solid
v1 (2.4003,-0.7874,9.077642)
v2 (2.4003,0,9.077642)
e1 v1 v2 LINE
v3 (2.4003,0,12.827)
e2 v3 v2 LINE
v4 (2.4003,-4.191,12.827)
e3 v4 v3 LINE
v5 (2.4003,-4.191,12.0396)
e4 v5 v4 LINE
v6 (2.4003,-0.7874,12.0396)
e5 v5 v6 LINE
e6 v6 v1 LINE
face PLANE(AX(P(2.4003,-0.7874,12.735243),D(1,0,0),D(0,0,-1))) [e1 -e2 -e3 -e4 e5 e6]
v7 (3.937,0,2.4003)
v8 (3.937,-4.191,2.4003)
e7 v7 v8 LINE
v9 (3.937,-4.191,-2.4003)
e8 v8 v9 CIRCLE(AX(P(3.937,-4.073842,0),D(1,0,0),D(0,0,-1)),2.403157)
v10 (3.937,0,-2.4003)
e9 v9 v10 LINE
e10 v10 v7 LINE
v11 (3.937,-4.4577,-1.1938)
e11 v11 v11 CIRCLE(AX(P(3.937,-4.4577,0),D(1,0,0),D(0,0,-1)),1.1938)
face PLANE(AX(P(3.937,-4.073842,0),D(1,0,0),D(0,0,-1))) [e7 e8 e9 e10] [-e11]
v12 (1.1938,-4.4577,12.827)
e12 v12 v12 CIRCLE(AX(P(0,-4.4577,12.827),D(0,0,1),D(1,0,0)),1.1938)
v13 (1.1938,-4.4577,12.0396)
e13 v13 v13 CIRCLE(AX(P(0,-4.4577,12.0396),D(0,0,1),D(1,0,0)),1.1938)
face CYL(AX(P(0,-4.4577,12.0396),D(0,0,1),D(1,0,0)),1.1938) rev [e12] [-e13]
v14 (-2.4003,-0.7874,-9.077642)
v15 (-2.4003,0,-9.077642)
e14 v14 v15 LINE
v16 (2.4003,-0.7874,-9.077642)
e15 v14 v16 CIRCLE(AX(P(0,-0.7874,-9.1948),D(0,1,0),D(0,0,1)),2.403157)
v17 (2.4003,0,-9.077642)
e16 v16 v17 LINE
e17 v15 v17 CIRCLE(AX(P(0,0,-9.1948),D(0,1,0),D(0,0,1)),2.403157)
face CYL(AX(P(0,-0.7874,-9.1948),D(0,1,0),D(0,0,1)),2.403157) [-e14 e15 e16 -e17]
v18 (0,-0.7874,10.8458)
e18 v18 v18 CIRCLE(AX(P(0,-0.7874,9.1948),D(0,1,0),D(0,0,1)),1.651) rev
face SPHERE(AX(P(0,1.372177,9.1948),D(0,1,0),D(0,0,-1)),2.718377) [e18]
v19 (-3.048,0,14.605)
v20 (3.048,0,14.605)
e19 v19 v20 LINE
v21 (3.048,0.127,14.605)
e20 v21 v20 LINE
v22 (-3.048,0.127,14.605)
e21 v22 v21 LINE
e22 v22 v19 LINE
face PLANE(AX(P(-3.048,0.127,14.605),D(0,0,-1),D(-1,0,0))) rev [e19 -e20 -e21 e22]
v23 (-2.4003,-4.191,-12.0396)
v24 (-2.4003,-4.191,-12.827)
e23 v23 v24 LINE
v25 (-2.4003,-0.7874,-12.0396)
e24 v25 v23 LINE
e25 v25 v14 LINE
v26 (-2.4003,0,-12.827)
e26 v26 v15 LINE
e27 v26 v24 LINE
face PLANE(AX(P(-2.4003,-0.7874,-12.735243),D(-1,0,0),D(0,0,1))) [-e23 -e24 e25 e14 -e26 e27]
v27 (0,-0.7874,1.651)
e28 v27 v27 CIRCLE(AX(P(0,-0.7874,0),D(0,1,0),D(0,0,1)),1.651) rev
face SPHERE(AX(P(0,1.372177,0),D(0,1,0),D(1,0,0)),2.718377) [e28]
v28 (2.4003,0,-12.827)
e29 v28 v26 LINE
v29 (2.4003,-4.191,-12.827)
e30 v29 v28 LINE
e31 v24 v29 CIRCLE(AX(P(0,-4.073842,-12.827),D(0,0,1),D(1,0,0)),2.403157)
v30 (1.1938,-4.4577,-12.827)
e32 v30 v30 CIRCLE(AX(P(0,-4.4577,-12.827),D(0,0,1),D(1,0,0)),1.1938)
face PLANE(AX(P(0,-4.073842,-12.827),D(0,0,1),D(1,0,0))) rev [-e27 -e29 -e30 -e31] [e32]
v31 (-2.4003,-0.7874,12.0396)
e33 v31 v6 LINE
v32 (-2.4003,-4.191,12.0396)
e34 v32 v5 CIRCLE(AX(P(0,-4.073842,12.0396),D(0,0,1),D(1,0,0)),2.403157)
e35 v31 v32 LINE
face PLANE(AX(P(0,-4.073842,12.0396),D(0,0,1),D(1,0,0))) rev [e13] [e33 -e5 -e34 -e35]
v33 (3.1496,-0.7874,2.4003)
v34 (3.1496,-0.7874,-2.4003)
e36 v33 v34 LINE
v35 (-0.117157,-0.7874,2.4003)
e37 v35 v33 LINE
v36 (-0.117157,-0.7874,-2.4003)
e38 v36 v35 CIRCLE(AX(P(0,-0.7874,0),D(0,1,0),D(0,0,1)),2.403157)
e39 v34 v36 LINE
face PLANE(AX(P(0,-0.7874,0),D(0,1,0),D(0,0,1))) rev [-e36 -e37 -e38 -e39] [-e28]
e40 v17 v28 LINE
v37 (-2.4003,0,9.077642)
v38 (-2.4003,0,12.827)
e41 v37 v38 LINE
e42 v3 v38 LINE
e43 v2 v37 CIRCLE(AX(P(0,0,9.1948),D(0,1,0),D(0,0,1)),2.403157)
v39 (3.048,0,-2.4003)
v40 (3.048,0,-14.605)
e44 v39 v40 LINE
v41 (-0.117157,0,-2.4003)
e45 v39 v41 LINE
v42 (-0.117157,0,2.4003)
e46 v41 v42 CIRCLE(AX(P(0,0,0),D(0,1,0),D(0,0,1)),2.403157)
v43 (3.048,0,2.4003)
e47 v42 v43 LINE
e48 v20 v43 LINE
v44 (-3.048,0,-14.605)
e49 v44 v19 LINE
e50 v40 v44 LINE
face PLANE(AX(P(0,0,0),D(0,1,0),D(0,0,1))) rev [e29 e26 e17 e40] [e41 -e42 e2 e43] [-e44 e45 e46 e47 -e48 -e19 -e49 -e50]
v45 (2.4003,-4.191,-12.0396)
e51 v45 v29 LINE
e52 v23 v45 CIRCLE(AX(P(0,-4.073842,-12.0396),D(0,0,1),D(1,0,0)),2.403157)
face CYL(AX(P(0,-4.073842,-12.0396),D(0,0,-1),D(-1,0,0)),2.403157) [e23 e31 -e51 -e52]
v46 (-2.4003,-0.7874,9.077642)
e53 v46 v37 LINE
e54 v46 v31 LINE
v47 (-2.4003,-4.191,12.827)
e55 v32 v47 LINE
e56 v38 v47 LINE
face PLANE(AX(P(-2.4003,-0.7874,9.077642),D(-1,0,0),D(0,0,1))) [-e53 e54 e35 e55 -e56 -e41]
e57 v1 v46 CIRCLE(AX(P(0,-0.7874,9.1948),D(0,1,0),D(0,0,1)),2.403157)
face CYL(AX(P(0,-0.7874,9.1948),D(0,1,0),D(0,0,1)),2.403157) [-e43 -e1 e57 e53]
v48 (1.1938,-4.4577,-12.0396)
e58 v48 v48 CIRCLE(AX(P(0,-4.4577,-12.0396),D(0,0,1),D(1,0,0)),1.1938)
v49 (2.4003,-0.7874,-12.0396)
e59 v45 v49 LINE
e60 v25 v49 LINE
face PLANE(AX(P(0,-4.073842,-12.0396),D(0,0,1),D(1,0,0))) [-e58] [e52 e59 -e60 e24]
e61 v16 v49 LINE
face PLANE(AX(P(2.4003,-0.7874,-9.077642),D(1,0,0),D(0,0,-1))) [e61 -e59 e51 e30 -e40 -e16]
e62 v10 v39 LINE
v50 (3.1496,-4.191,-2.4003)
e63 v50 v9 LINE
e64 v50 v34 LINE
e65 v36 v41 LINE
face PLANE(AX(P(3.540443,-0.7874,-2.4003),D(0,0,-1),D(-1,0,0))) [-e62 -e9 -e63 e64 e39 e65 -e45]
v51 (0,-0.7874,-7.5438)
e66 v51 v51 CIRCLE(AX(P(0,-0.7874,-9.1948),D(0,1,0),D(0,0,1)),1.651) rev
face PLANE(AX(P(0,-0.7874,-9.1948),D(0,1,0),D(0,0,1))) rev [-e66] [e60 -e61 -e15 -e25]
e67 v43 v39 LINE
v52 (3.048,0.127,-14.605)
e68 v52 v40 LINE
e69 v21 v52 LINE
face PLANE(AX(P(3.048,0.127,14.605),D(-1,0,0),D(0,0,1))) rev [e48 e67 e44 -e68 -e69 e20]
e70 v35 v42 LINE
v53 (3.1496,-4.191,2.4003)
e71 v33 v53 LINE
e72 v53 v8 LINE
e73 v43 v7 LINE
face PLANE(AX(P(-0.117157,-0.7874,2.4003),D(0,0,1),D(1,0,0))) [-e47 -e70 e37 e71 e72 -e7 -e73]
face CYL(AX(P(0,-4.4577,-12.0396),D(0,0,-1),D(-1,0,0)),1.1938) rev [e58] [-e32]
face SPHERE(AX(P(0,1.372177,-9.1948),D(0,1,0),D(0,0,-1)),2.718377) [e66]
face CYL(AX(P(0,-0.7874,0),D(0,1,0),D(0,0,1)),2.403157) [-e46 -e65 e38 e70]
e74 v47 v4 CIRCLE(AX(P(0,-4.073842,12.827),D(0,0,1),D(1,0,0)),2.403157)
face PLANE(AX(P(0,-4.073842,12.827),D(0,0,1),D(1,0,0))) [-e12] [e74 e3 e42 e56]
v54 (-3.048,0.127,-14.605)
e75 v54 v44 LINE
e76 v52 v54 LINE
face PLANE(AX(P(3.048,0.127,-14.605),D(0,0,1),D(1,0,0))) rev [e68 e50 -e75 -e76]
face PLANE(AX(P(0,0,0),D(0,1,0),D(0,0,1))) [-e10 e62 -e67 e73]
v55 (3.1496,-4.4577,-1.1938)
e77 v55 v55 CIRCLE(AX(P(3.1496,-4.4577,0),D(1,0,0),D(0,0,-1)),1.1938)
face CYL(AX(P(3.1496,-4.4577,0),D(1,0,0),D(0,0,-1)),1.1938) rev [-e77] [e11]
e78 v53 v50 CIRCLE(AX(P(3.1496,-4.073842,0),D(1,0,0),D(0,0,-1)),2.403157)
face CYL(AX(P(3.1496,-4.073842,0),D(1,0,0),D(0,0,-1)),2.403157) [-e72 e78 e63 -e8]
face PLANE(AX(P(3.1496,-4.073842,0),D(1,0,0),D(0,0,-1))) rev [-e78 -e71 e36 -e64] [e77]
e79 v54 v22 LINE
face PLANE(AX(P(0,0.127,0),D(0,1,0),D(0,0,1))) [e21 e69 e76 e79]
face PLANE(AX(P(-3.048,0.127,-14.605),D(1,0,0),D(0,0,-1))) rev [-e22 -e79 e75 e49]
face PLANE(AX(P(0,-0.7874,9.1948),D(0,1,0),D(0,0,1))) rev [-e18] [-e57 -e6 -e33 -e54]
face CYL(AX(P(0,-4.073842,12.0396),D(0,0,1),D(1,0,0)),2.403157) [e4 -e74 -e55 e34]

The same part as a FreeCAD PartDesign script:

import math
import FreeCAD as App
import Part
import Sketcher
Q = App.Units.Quantity


def add_polygon(sketch, points):
    """Adds a closed chain of lines whose ends are joined by coincident constraints."""
    first, n = sketch.GeometryCount, len(points)
    for a, b in zip(points, points[1:] + points[:1]):
        sketch.addGeometry(Part.LineSegment(App.Vector(*a, 0), App.Vector(*b, 0)), False)
    for i in range(n):
        sketch.addConstraint(Sketcher.Constraint("Coincident", first + i, 2, first + (i + 1) % n, 1))

doc = App.newDocument("Part")
body = doc.addObject("PartDesign::Body", "Body")

sketch1 = body.newObject("Sketcher::SketchObject", "Sketch")
sketch1.AttachmentSupport = (doc.getObject("XZ_Plane"), [""])
sketch1.MapMode = "FlatFace"
add_polygon(sketch1, [(-3, -15), (-3, 15), (3, 15), (3, -15)])
sketch1.addConstraint([
    Sketcher.Constraint("Vertical", 0),
    Sketcher.Constraint("Horizontal", 1),
    Sketcher.Constraint("Vertical", 2),
    Sketcher.Constraint("Horizontal", 3),
    Sketcher.Constraint("Symmetric", 0, 2, 2, 2, -1, 1),
    Sketcher.Constraint("DistanceX", 1, 1, 1, 2, Q("0.24 in")),
    Sketcher.Constraint("DistanceY", 0, 1, 0, 2, Q("1.15 in")),
])
pad1 = body.newObject("PartDesign::Pad", "Pad")
pad1.Profile = sketch1
pad1.Length = Q("0.005 in")
pad1.Reversed = True

sketch2 = body.newObject("Sketcher::SketchObject", "Sketch001")
sketch2.AttachmentSupport = (doc.getObject("XZ_Plane"), [""])
sketch2.MapMode = "FlatFace"
sketch2.addGeometry([
    Part.LineSegment(App.Vector(-0.1, 2.4, 0), App.Vector(3.5, 2.4, 0)),
    Part.LineSegment(App.Vector(3.5, 2.4, 0), App.Vector(3.5, -2.4, 0)),
    Part.LineSegment(App.Vector(3.5, -2.4, 0), App.Vector(-0.1, -2.4, 0)),
    Part.ArcOfCircle(Part.Circle(App.Vector(0, 0, 0), App.Vector(0, 0, 1), 2.4), math.radians(93), math.radians(267)),
], False)
sketch2.addConstraint([
    Sketcher.Constraint("Coincident", 0, 2, 1, 1),
    Sketcher.Constraint("Coincident", 1, 2, 2, 1),
    Sketcher.Constraint("Coincident", 2, 2, 3, 2),
    Sketcher.Constraint("Coincident", 3, 1, 0, 1),
    Sketcher.Constraint("Horizontal", 0),
    Sketcher.Constraint("Vertical", 1),
    Sketcher.Constraint("Horizontal", 2),
    Sketcher.Constraint("Coincident", 3, 3, -1, 1),
    Sketcher.Constraint("Vertical", 2, 2, 3, 1),
    Sketcher.Constraint("DistanceX", 0, 1, 0, 2, Q("0.144 in")),
    Sketcher.Constraint("DistanceY", 1, 2, 1, 1, Q("0.189 in")),
    Sketcher.Constraint("Radius", 3, 2.403157),
])
pad2 = body.newObject("PartDesign::Pad", "Pad001")
pad2.Profile = sketch2
pad2.Length = Q("0.031 in")

sketch3 = body.newObject("Sketcher::SketchObject", "Sketch002")
sketch3.AttachmentSupport = (doc.getObject("XZ_Plane"), [""])
sketch3.MapMode = "FlatFace"
sketch3.addGeometry([
    Part.LineSegment(App.Vector(2.4, -9.1, 0), App.Vector(2.4, -12.7, 0)),
    Part.LineSegment(App.Vector(2.4, -12.7, 0), App.Vector(-2.4, -12.7, 0)),
    Part.LineSegment(App.Vector(-2.4, -12.7, 0), App.Vector(-2.4, -9.1, 0)),
    Part.ArcOfCircle(Part.Circle(App.Vector(0, -9.2, 0), App.Vector(0, 0, 1), 2.4), math.radians(3), math.radians(177)),
], False)
sketch3.addConstraint([
    Sketcher.Constraint("Coincident", 0, 2, 1, 1),
    Sketcher.Constraint("Coincident", 1, 2, 2, 1),
    Sketcher.Constraint("Coincident", 2, 2, 3, 2),
    Sketcher.Constraint("Coincident", 3, 1, 0, 1),
    Sketcher.Constraint("Vertical", 0),
    Sketcher.Constraint("Horizontal", 1),
    Sketcher.Constraint("Vertical", 2),
    Sketcher.Constraint("Symmetric", 2, 2, 3, 1, -2),
    Sketcher.Constraint("DistanceX", 1, 2, 1, 1, Q("0.189 in")),
    Sketcher.Constraint("DistanceY", 0, 2, 0, 1, Q("0.144 in")),
    Sketcher.Constraint("DistanceY", 3, 3, -1, 1, Q("0.362 in")),
    Sketcher.Constraint("Radius", 3, 2.403157),
])
pad3 = body.newObject("PartDesign::Pad", "Pad002")
pad3.Profile = sketch3
pad3.Length = Q("0.031 in")

sketch4 = body.newObject("Sketcher::SketchObject", "Sketch003")
sketch4.AttachmentSupport = (doc.getObject("XZ_Plane"), [""])
sketch4.MapMode = "FlatFace"
sketch4.addGeometry([
    Part.LineSegment(App.Vector(-2.4, 12.7, 0), App.Vector(2.4, 12.7, 0)),
    Part.LineSegment(App.Vector(2.4, 12.7, 0), App.Vector(2.4, 9.1, 0)),
    Part.ArcOfCircle(Part.Circle(App.Vector(0, 9.2, 0), App.Vector(0, 0, 1), 2.4), math.radians(-177), math.radians(-3)),
    Part.LineSegment(App.Vector(-2.4, 9.1, 0), App.Vector(-2.4, 12.7, 0)),
], False)
sketch4.addConstraint([
    Sketcher.Constraint("Coincident", 0, 2, 1, 1),
    Sketcher.Constraint("Coincident", 1, 2, 2, 2),
    Sketcher.Constraint("Coincident", 2, 1, 3, 1),
    Sketcher.Constraint("Coincident", 3, 2, 0, 1),
    Sketcher.Constraint("Horizontal", 0),
    Sketcher.Constraint("Vertical", 1),
    Sketcher.Constraint("Vertical", 3),
    Sketcher.Constraint("Symmetric", 1, 2, 2, 1, -2),
    Sketcher.Constraint("DistanceX", 0, 1, 0, 2, Q("0.189 in")),
    Sketcher.Constraint("DistanceY", 1, 2, 1, 1, Q("0.144 in")),
    Sketcher.Constraint("DistanceY", -1, 1, 2, 3, Q("0.362 in")),
    Sketcher.Constraint("Radius", 2, 2.403157),
])
pad4 = body.newObject("PartDesign::Pad", "Pad003")
pad4.Profile = sketch4
pad4.Length = Q("0.031 in")

sketch5 = body.newObject("Sketcher::SketchObject", "Sketch004")
sketch5.AttachmentSupport = (doc.getObject("YZ_Plane"), [""])
sketch5.MapMode = "FlatFace"
sketch5.AttachmentOffset = App.Placement(App.Vector(0, 0, 0.155 * 25.4), App.Rotation())
sketch5.addGeometry([
    Part.LineSegment(App.Vector(0, 2.4, 0), App.Vector(-4.2, 2.4, 0)),
    Part.ArcOfCircle(Part.Circle(App.Vector(-4.1, 0, 0), App.Vector(0, 0, 1), 2.4), math.radians(93), math.radians(267)),
    Part.LineSegment(App.Vector(-4.2, -2.4, 0), App.Vector(0, -2.4, 0)),
    Part.LineSegment(App.Vector(0, -2.4, 0), App.Vector(0, 2.4, 0)),
    Part.Circle(App.Vector(-4.5, 0, 0), App.Vector(0, 0, 1), 1.2),
], False)
sketch5.addConstraint([
    Sketcher.Constraint("Coincident", 0, 2, 1, 1),
    Sketcher.Constraint("Coincident", 1, 2, 2, 1),
    Sketcher.Constraint("Coincident", 2, 2, 3, 1),
    Sketcher.Constraint("Coincident", 3, 2, 0, 1),
    Sketcher.Constraint("Horizontal", 0),
    Sketcher.Constraint("Horizontal", 2),
    Sketcher.Constraint("Vertical", 3),
    Sketcher.Constraint("Symmetric", 2, 2, 3, 2, -1, 1),
    Sketcher.Constraint("PointOnObject", 1, 3, -1),
    Sketcher.Constraint("PointOnObject", 4, 3, -1),
    Sketcher.Constraint("Diameter", 4, Q("0.094 in")),
    Sketcher.Constraint("DistanceX", 0, 2, 0, 1, Q("0.165 in")),
    Sketcher.Constraint("DistanceY", 3, 1, 3, 2, Q("0.189 in")),
    Sketcher.Constraint("DistanceX", 4, 3, -1, 1, Q("0.1755 in")),
    Sketcher.Constraint("Radius", 1, 2.403157),
])
pad5 = body.newObject("PartDesign::Pad", "Pad004")
pad5.Profile = sketch5
pad5.Length = Q("0.031 in")
pad5.Reversed = True

sketch6 = body.newObject("Sketcher::SketchObject", "Sketch005")
sketch6.AttachmentSupport = (doc.getObject("XY_Plane"), [""])
sketch6.MapMode = "FlatFace"
sketch6.AttachmentOffset = App.Placement(App.Vector(0, 0, 0.505 * 25.4), App.Rotation())
sketch6.addGeometry([
    Part.LineSegment(App.Vector(-2.4, 0, 0), App.Vector(-2.4, -4.2, 0)),
    Part.ArcOfCircle(Part.Circle(App.Vector(0, -4.1, 0), App.Vector(0, 0, 1), 2.4), math.radians(-177), math.radians(-3)),
    Part.LineSegment(App.Vector(2.4, -4.2, 0), App.Vector(2.4, 0, 0)),
    Part.LineSegment(App.Vector(2.4, 0, 0), App.Vector(-2.4, 0, 0)),
    Part.Circle(App.Vector(0, -4.5, 0), App.Vector(0, 0, 1), 1.2),
], False)
sketch6.addConstraint([
    Sketcher.Constraint("Coincident", 0, 2, 1, 1),
    Sketcher.Constraint("Coincident", 1, 2, 2, 1),
    Sketcher.Constraint("Coincident", 2, 2, 3, 1),
    Sketcher.Constraint("Coincident", 3, 2, 0, 1),
    Sketcher.Constraint("Vertical", 0),
    Sketcher.Constraint("Vertical", 2),
    Sketcher.Constraint("Horizontal", 3),
    Sketcher.Constraint("Symmetric", 2, 2, 3, 2, -1, 1),
    Sketcher.Constraint("PointOnObject", 1, 3, -2),
    Sketcher.Constraint("PointOnObject", 4, 3, -2),
    Sketcher.Constraint("Diameter", 4, Q("0.094 in")),
    Sketcher.Constraint("DistanceX", 3, 2, 3, 1, Q("0.189 in")),
    Sketcher.Constraint("DistanceY", 0, 2, 0, 1, Q("0.165 in")),
    Sketcher.Constraint("DistanceY", 4, 3, -1, 1, Q("0.1755 in")),
    Sketcher.Constraint("Radius", 1, 2.403157),
])
pad6 = body.newObject("PartDesign::Pad", "Pad005")
pad6.Profile = sketch6
pad6.Length = Q("0.031 in")
pad6.Reversed = True

sketch7 = body.newObject("Sketcher::SketchObject", "Sketch006")
sketch7.AttachmentSupport = (doc.getObject("XY_Plane"), [""])
sketch7.MapMode = "FlatFace"
sketch7.AttachmentOffset = App.Placement(App.Vector(0, 0, -0.505 * 25.4), App.Rotation())
sketch7.addGeometry([
    Part.LineSegment(App.Vector(-2.4, 0, 0), App.Vector(-2.4, -4.2, 0)),
    Part.ArcOfCircle(Part.Circle(App.Vector(0, -4.1, 0), App.Vector(0, 0, 1), 2.4), math.radians(-177), math.radians(-3)),
    Part.LineSegment(App.Vector(2.4, -4.2, 0), App.Vector(2.4, 0, 0)),
    Part.LineSegment(App.Vector(2.4, 0, 0), App.Vector(-2.4, 0, 0)),
    Part.Circle(App.Vector(0, -4.5, 0), App.Vector(0, 0, 1), 1.2),
], False)
sketch7.addConstraint([
    Sketcher.Constraint("Coincident", 0, 2, 1, 1),
    Sketcher.Constraint("Coincident", 1, 2, 2, 1),
    Sketcher.Constraint("Coincident", 2, 2, 3, 1),
    Sketcher.Constraint("Coincident", 3, 2, 0, 1),
    Sketcher.Constraint("Vertical", 0),
    Sketcher.Constraint("Vertical", 2),
    Sketcher.Constraint("Horizontal", 3),
    Sketcher.Constraint("Symmetric", 2, 2, 3, 2, -1, 1),
    Sketcher.Constraint("PointOnObject", 1, 3, -2),
    Sketcher.Constraint("PointOnObject", 4, 3, -2),
    Sketcher.Constraint("Diameter", 4, Q("0.094 in")),
    Sketcher.Constraint("DistanceX", 3, 2, 3, 1, Q("0.189 in")),
    Sketcher.Constraint("DistanceY", 0, 2, 0, 1, Q("0.165 in")),
    Sketcher.Constraint("DistanceY", 4, 3, -1, 1, Q("0.1755 in")),
    Sketcher.Constraint("Radius", 1, 2.403157),
])
pad7 = body.newObject("PartDesign::Pad", "Pad006")
pad7.Profile = sketch7
pad7.Length = Q("0.031 in")

sketch8 = body.newObject("Sketcher::SketchObject", "Sketch007")
sketch8.AttachmentSupport = (doc.getObject("XY_Plane"), [""])
sketch8.MapMode = "FlatFace"
sketch8.addGeometry([
    Part.LineSegment(App.Vector(1.7, 0, 0), App.Vector(0, 0, 0)),
    Part.LineSegment(App.Vector(0, 0, 0), App.Vector(0, -1.3, 0)),
    Part.ArcOfCircle(Part.Circle(App.Vector(0, 1.4, 0), App.Vector(0, 0, 1), 2.7), math.radians(-90), math.radians(-53)),
    Part.LineSegment(App.Vector(1.7, -0.8, 0), App.Vector(1.7, 0, 0)),
], False)
sketch8.addConstraint([
    Sketcher.Constraint("Coincident", 0, 2, 1, 1),
    Sketcher.Constraint("Coincident", 1, 2, 2, 1),
    Sketcher.Constraint("Coincident", 2, 2, 3, 1),
    Sketcher.Constraint("Coincident", 3, 2, 0, 1),
    Sketcher.Constraint("Horizontal", 0),
    Sketcher.Constraint("Vertical", 1),
    Sketcher.Constraint("Vertical", 3),
    Sketcher.Constraint("Coincident", 0, 2, -1, 1),
    Sketcher.Constraint("PointOnObject", 2, 3, -2),
    Sketcher.Constraint("DistanceX", 0, 2, 0, 1, Q("0.065 in")),
    Sketcher.Constraint("DistanceY", 1, 2, 1, 1, Q("0.053 in")),
    Sketcher.Constraint("DistanceY", 3, 1, 3, 2, Q("0.031 in")),
])
revolution = body.newObject("PartDesign::Revolution", "Revolution")
revolution.Profile = sketch8
revolution.ReferenceAxis = (sketch8, ["V_Axis"])
revolution.Angle = 360

sketch9 = body.newObject("Sketcher::SketchObject", "Sketch008")
sketch9.AttachmentSupport = (doc.getObject("YZ_Plane"), [""])
sketch9.MapMode = "FlatFace"
sketch9.addGeometry([
    Part.LineSegment(App.Vector(0, -10.8, 0), App.Vector(0, -9.2, 0)),
    Part.LineSegment(App.Vector(0, -9.2, 0), App.Vector(-1.3, -9.2, 0)),
    Part.ArcOfCircle(Part.Circle(App.Vector(1.4, -9.2, 0), App.Vector(0, 0, 1), 2.7), math.radians(-180), math.radians(-143)),
    Part.LineSegment(App.Vector(-0.8, -10.8, 0), App.Vector(0, -10.8, 0)),
], False)
sketch9.addGeometry(Part.LineSegment(App.Vector(-1.3, -9.2, 0), App.Vector(1.4, -9.2, 0)), True)
sketch9.addConstraint([
    Sketcher.Constraint("Coincident", 0, 2, 1, 1),
    Sketcher.Constraint("Coincident", 1, 2, 2, 1),
    Sketcher.Constraint("Coincident", 2, 2, 3, 1),
    Sketcher.Constraint("Coincident", 3, 2, 0, 1),
    Sketcher.Constraint("Vertical", 0),
    Sketcher.Constraint("Horizontal", 1),
    Sketcher.Constraint("Horizontal", 3),
    Sketcher.Constraint("Horizontal", 4),
    Sketcher.Constraint("Coincident", 4, 1, 1, 2),
    Sketcher.Constraint("Coincident", 4, 2, 2, 3),
    Sketcher.Constraint("PointOnObject", 0, 2, -2),
    Sketcher.Constraint("DistanceX", 1, 2, 1, 1, Q("0.053 in")),
    Sketcher.Constraint("DistanceX", 3, 1, 3, 2, Q("0.031 in")),
    Sketcher.Constraint("DistanceY", 0, 1, 0, 2, Q("0.065 in")),
    Sketcher.Constraint("DistanceY", 2, 3, -1, 1, Q("0.362 in")),
])
revolution2 = body.newObject("PartDesign::Revolution", "Revolution001")
revolution2.Profile = sketch9
revolution2.ReferenceAxis = (sketch9, ["Axis0"])
revolution2.Angle = 360

sketch10 = body.newObject("Sketcher::SketchObject", "Sketch009")
sketch10.AttachmentSupport = (doc.getObject("YZ_Plane"), [""])
sketch10.MapMode = "FlatFace"
sketch10.addGeometry([
    Part.LineSegment(App.Vector(0, 7.5, 0), App.Vector(0, 9.2, 0)),
    Part.LineSegment(App.Vector(0, 9.2, 0), App.Vector(-1.3, 9.2, 0)),
    Part.ArcOfCircle(Part.Circle(App.Vector(1.4, 9.2, 0), App.Vector(0, 0, 1), 2.7), math.radians(-180), math.radians(-143)),
    Part.LineSegment(App.Vector(-0.8, 7.5, 0), App.Vector(0, 7.5, 0)),
], False)
sketch10.addGeometry(Part.LineSegment(App.Vector(-1.3, 9.2, 0), App.Vector(1.4, 9.2, 0)), True)
sketch10.addConstraint([
    Sketcher.Constraint("Coincident", 0, 2, 1, 1),
    Sketcher.Constraint("Coincident", 1, 2, 2, 1),
    Sketcher.Constraint("Coincident", 2, 2, 3, 1),
    Sketcher.Constraint("Coincident", 3, 2, 0, 1),
    Sketcher.Constraint("Vertical", 0),
    Sketcher.Constraint("Horizontal", 1),
    Sketcher.Constraint("Horizontal", 3),
    Sketcher.Constraint("Horizontal", 4),
    Sketcher.Constraint("Coincident", 4, 1, 1, 2),
    Sketcher.Constraint("Coincident", 4, 2, 2, 3),
    Sketcher.Constraint("PointOnObject", 0, 2, -2),
    Sketcher.Constraint("DistanceX", 1, 2, 1, 1, Q("0.053 in")),
    Sketcher.Constraint("DistanceX", 3, 1, 3, 2, Q("0.031 in")),
    Sketcher.Constraint("DistanceY", 0, 1, 0, 2, Q("0.065 in")),
    Sketcher.Constraint("DistanceY", -1, 1, 2, 3, Q("0.362 in")),
])
revolution3 = body.newObject("PartDesign::Revolution", "Revolution002")
revolution3.Profile = sketch10
revolution3.ReferenceAxis = (sketch10, ["Axis0"])
revolution3.Angle = 360

doc.recompute()
